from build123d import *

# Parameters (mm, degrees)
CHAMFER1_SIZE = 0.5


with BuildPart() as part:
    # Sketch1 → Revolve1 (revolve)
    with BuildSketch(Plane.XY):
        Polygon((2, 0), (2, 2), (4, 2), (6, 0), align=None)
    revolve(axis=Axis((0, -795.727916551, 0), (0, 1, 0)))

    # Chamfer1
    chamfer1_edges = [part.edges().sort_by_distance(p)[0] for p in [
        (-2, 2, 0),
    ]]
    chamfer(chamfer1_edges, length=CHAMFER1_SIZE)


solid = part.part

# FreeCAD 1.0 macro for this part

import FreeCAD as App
import Part
import Sketcher
from FreeCAD import Vector


def edges_at(feature, points):
    """Names of the edges that pass closest to the given points."""
    edges = feature.Shape.Edges
    near = lambda p: min(range(len(edges)), key=lambda i: edges[i].distToShape(Part.Vertex(*p))[0])
    return sorted({f"Edge{near(p) + 1}" for p in points})


def add_polygon(sketch, points):
    """Adds a closed chain of lines whose ends are joined by coincident constraints."""
    first, n = sketch.GeometryCount, len(points)
    for a, b in zip(points, points[1:] + points[:1]):
        sketch.addGeometry(Part.LineSegment(App.Vector(*a, 0), App.Vector(*b, 0)), False)
    for i in range(n):
        sketch.addConstraint(Sketcher.Constraint("Coincident", first + i, 2, first + (i + 1) % n, 1))

doc = App.newDocument("Part")
body = doc.addObject("PartDesign::Body", "Body")

# Sketch on XY plane
sketch1 = body.newObject("Sketcher::SketchObject", "Sketch")
sketch1.AttachmentSupport = (doc.getObject("XY_Plane"), [""])
sketch1.MapMode = "FlatFace"
add_polygon(sketch1, [(2, 2), (2, 0), (6, 0), (4, 2)])  # lines 0-3
sketch1.addConstraint([
    Sketcher.Constraint("Vertical", 0),
    Sketcher.Constraint("Horizontal", 1),
    Sketcher.Constraint("Horizontal", 3),
    Sketcher.Constraint("PointOnObject", 0, 2, -1),
    Sketcher.Constraint("Equal", 3, 0),
    Sketcher.Constraint("DistanceX", 1, 1, 1, 2, 4.0),
    Sketcher.Constraint("DistanceX", 3, 2, 3, 1, 2.0),
    Sketcher.Constraint("DistanceX", -1, 1, 0, 2, 2.0),
])
revolution = body.newObject("PartDesign::Revolution", "Revolution")
revolution.Profile = sketch1
revolution.ReferenceAxis = (sketch1, ["V_Axis"])
revolution.Angle = 360
doc.recompute()

chamfer = body.newObject("PartDesign::Chamfer", "Chamfer")
chamfer.Base = (revolution, edges_at(revolution, [(-2, 2, 0)]))
chamfer.Size = 0.5

doc.recompute()
